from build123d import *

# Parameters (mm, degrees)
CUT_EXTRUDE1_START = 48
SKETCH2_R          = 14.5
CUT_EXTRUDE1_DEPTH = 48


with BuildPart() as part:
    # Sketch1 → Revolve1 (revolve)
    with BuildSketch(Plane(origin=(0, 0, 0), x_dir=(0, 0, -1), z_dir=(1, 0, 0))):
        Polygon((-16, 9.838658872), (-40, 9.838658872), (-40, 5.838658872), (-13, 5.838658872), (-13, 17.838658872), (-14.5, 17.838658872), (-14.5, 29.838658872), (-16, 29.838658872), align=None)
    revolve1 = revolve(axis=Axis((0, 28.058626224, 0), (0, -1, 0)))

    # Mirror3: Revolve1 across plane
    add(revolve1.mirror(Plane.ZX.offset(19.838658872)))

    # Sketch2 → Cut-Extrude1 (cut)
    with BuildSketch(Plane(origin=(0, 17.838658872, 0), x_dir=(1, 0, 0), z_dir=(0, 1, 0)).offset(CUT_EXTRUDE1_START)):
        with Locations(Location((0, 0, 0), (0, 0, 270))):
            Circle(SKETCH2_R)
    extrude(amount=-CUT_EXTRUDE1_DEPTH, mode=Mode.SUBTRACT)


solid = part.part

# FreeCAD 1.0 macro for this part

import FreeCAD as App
import Part
import Sketcher

V = App.Vector
Q = App.Units.Quantity

doc = App.newDocument("Part")
body = doc.addObject("PartDesign::Body", "Body")

# Sketch on YZ plane
sketch1 = body.newObject("Sketcher::SketchObject", "Sketch")
sketch1.AttachmentSupport = (doc.getObject("YZ_Plane"), [""])
sketch1.MapMode = "FlatFace"
sketch1.addGeometry([
    Part.LineSegment(V(9.8, 16, 0), V(9.8, 40, 0)),  # 0
    Part.LineSegment(V(9.8, 40, 0), V(5.8, 40, 0)),  # 1
    Part.LineSegment(V(5.8, 40, 0), V(5.8, 13, 0)),  # 2
    Part.LineSegment(V(5.8, 13, 0), V(17.8, 13, 0)),  # 3
    Part.LineSegment(V(17.8, 13, 0), V(17.8, 14.5, 0)),  # 4
    Part.LineSegment(V(17.8, 14.5, 0), V(29.8, 14.5, 0)),  # 5
    Part.LineSegment(V(29.8, 14.5, 0), V(29.8, 16, 0)),  # 6
    Part.LineSegment(V(29.8, 16, 0), V(9.8, 16, 0)),  # 7
], False)
sketch1.addConstraint([
    Sketcher.Constraint("Coincident", 0, 2, 1, 1),
    Sketcher.Constraint("Coincident", 1, 2, 2, 1),
    Sketcher.Constraint("Coincident", 2, 2, 3, 1),
    Sketcher.Constraint("Coincident", 3, 2, 4, 1),
    Sketcher.Constraint("Coincident", 4, 2, 5, 1),
    Sketcher.Constraint("Coincident", 5, 2, 6, 1),
    Sketcher.Constraint("Coincident", 6, 2, 7, 1),
    Sketcher.Constraint("Coincident", 7, 2, 0, 1),
    Sketcher.Constraint("Vertical", 0),
    Sketcher.Constraint("Horizontal", 1),
    Sketcher.Constraint("Vertical", 2),
    Sketcher.Constraint("Horizontal", 3),
    Sketcher.Constraint("Vertical", 4),
    Sketcher.Constraint("Horizontal", 5),
    Sketcher.Constraint("Vertical", 6),
    Sketcher.Constraint("Horizontal", 7),
    Sketcher.Constraint("Equal", 3, 5),
    Sketcher.Constraint("Equal", 4, 6),
    Sketcher.Constraint("DistanceX", 1, 2, 1, 1, Q("4 mm")),
    Sketcher.Constraint("DistanceX", 3, 1, 3, 2, Q("12 mm")),
    Sketcher.Constraint("DistanceY", 0, 1, 0, 2, Q("24 mm")),
    Sketcher.Constraint("DistanceY", 2, 2, 2, 1, Q("27 mm")),
    Sketcher.Constraint("DistanceY", -1, 1, 0, 2, Q("40 mm")),
    Sketcher.Constraint("DistanceX", -1, 1, 0, 2, Q("9.838659 mm")),
])
revolution = body.newObject("PartDesign::Revolution", "Revolution")
revolution.Profile = sketch1
revolution.ReferenceAxis = (sketch1, ["H_Axis"])
revolution.Angle = 360
doc.recompute()

datumplane = body.newObject("PartDesign::Plane", "DatumPlane")
datumplane.AttachmentSupport = (doc.getObject("XZ_Plane"), [""])
datumplane.MapMode = "FlatFace"
datumplane.AttachmentOffset = App.Placement(V(0, 0, -19.838659), App.Rotation())
mirrored = body.newObject("PartDesign::Mirrored", "Mirrored")
mirrored.Originals = [revolution]
mirrored.MirrorPlane = (datumplane, [""])
body.Tip = mirrored

# Sketch on XZ plane
sketch2 = body.newObject("Sketcher::SketchObject", "Sketch001")
sketch2.AttachmentSupport = (doc.getObject("XZ_Plane"), [""])
sketch2.MapMode = "FlatFace"
sketch2.AttachmentOffset = App.Placement(V(0, 0, -65.838659), App.Rotation())
sketch2.addGeometry(Part.Circle(V(0, 0, 0), V(0, 0, 1), 14), False)
sketch2.addConstraint([
    Sketcher.Constraint("Coincident", 0, 3, -1, 1),
    Sketcher.Constraint("Diameter", 0, Q("29 mm")),
])
pocket1 = body.newObject("PartDesign::Pocket", "Pocket")
pocket1.Profile = sketch2
pocket1.Length = 48
pocket1.Reversed = True

doc.recompute()
